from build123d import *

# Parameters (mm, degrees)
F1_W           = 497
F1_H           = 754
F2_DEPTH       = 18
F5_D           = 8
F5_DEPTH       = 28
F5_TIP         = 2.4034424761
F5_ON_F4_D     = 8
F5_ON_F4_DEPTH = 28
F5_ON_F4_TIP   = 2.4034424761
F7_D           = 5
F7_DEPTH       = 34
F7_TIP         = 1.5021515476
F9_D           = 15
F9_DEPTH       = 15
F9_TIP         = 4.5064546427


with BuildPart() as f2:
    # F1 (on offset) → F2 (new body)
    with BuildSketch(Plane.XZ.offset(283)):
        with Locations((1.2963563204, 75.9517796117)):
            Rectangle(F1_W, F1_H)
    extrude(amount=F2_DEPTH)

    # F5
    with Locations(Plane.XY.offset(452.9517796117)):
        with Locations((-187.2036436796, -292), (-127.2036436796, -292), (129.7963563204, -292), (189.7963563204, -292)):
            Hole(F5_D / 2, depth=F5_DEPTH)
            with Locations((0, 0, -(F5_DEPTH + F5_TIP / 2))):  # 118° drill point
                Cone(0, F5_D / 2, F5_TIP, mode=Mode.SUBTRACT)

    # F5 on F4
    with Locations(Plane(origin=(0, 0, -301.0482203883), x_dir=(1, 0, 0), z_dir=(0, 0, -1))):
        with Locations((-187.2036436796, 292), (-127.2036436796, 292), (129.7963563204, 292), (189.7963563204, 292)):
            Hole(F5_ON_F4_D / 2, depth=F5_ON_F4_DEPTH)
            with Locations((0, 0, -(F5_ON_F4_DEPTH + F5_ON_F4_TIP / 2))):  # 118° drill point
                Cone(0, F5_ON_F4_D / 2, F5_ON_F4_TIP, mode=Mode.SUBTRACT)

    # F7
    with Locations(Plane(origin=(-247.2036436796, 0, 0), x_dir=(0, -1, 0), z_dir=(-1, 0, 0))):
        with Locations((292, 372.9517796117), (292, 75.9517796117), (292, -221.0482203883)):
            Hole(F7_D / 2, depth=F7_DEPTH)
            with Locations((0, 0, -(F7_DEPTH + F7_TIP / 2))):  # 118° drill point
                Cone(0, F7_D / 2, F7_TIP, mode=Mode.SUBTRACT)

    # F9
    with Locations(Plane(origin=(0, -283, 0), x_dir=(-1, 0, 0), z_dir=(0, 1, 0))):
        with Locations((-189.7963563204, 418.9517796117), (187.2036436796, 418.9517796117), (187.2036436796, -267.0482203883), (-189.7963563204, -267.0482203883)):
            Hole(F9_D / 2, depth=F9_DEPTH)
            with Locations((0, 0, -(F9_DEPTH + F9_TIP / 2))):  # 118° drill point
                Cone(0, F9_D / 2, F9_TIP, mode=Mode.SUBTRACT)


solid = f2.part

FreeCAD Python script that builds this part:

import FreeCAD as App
import Part
import Sketcher
from FreeCAD import Vector


def add_polygon(sketch, points):
    """Adds a closed chain of lines whose ends are joined by coincident constraints."""
    first, n = sketch.GeometryCount, len(points)
    for a, b in zip(points, points[1:] + points[:1]):
        sketch.addGeometry(Part.LineSegment(App.Vector(*a, 0), App.Vector(*b, 0)), False)
    for i in range(n):
        sketch.addConstraint(Sketcher.Constraint("Coincident", first + i, 2, first + (i + 1) % n, 1))

doc = App.newDocument("Part")
body = doc.addObject("PartDesign::Body", "Body")

# Sketch on XZ plane
sketch1 = doc.addObject("Sketcher::SketchObject", "Sketch")
body.addObject(sketch1)
sketch1.AttachmentSupport = (doc.XZ_Plane, [""])
sketch1.MapMode = "FlatFace"
sketch1.AttachmentOffset = App.Placement(Vector(0, 0, 283), App.Rotation())
add_polygon(sketch1, [(-247, 453), (-247, -301), (250, -301), (250, 453)])  # lines 0-3
sketch1.addConstraint(Sketcher.Constraint("Vertical", 0))
sketch1.addConstraint(Sketcher.Constraint("Horizontal", 1))
sketch1.addConstraint(Sketcher.Constraint("Vertical", 2))
sketch1.addConstraint(Sketcher.Constraint("Horizontal", 3))
sketch1.addConstraint(Sketcher.Constraint("DistanceX", 1, 1, 1, 2, 497.0))
sketch1.addConstraint(Sketcher.Constraint("DistanceY", 0, 2, 0, 1, 754.0))
sketch1.addConstraint(Sketcher.Constraint("DistanceY", 0, 2, -1, 1, 301.04822))
sketch1.addConstraint(Sketcher.Constraint("DistanceX", 0, 2, -1, 1, 247.203644))
pad1 = doc.addObject("PartDesign::Pad", "Pad")
body.addObject(pad1)
pad1.Profile = sketch1
pad1.Length = 18

# Sketch on XY plane
sketch2 = doc.addObject("Sketcher::SketchObject", "Sketch001")
body.addObject(sketch2)
sketch2.AttachmentSupport = (doc.XY_Plane, [""])
sketch2.MapMode = "FlatFace"
sketch2.AttachmentOffset = App.Placement(Vector(0, 0, 452.95178), App.Rotation())
sketch2.addGeometry(Part.Circle(Vector(-187.2, -292, 0), Vector(0, 0, 1), 4), False)
sketch2.addGeometry(Part.Circle(Vector(-127.2, -292, 0), Vector(0, 0, 1), 4), False)
sketch2.addGeometry(Part.Circle(Vector(129.8, -292, 0), Vector(0, 0, 1), 4), False)
sketch2.addGeometry(Part.Circle(Vector(189.8, -292, 0), Vector(0, 0, 1), 4), False)
sketch2.addConstraint(Sketcher.Constraint("Equal", 0, 1))
sketch2.addConstraint(Sketcher.Constraint("Equal", 1, 2))
sketch2.addConstraint(Sketcher.Constraint("Equal", 2, 3))
sketch2.addConstraint(Sketcher.Constraint("Horizontal", 0, 3, 1, 3))
sketch2.addConstraint(Sketcher.Constraint("Horizontal", 1, 3, 2, 3))
sketch2.addConstraint(Sketcher.Constraint("Horizontal", 2, 3, 3, 3))
sketch2.addConstraint(Sketcher.Constraint("Diameter", 0, 8.0))
sketch2.addConstraint(Sketcher.Constraint("DistanceY", 0, 3, -1, 1, 292.0))
sketch2.addConstraint(Sketcher.Constraint("DistanceX", 0, 3, 1, 3, 60.0))
sketch2.addConstraint(Sketcher.Constraint("DistanceX", 1, 3, 2, 3, 257.0))
sketch2.addConstraint(Sketcher.Constraint("DistanceX", 2, 3, 3, 3, 60.0))
sketch2.addConstraint(Sketcher.Constraint("DistanceX", 0, 3, -1, 1, 187.203644))
doc.recompute()
hole = doc.addObject("PartDesign::Hole", "Hole")
body.addObject(hole)
hole.Profile = sketch2
hole.ThreadType = "None"
hole.Diameter = 8
hole.DepthType = "Dimension"
hole.Depth = 28
hole.DrillPoint = "Angled"
hole.DrillPointAngle = 118

# Sketch on XY plane
sketch3 = doc.addObject("Sketcher::SketchObject", "Sketch002")
body.addObject(sketch3)
sketch3.AttachmentSupport = (doc.XY_Plane, [""])
sketch3.MapMode = "FlatFace"
sketch3.AttachmentOffset = App.Placement(Vector(0, 0, -301.04822), App.Rotation())
sketch3.addGeometry(Part.Circle(Vector(-187.2, -292, 0), Vector(0, 0, 1), 4), False)
sketch3.addGeometry(Part.Circle(Vector(-127.2, -292, 0), Vector(0, 0, 1), 4), False)
sketch3.addGeometry(Part.Circle(Vector(129.8, -292, 0), Vector(0, 0, 1), 4), False)
sketch3.addGeometry(Part.Circle(Vector(189.8, -292, 0), Vector(0, 0, 1), 4), False)
sketch3.addConstraint(Sketcher.Constraint("Equal", 0, 1))
sketch3.addConstraint(Sketcher.Constraint("Equal", 1, 2))
sketch3.addConstraint(Sketcher.Constraint("Equal", 2, 3))
sketch3.addConstraint(Sketcher.Constraint("Horizontal", 0, 3, 1, 3))
sketch3.addConstraint(Sketcher.Constraint("Horizontal", 1, 3, 2, 3))
sketch3.addConstraint(Sketcher.Constraint("Horizontal", 2, 3, 3, 3))
sketch3.addConstraint(Sketcher.Constraint("Diameter", 0, 8.0))
sketch3.addConstraint(Sketcher.Constraint("DistanceY", 0, 3, -1, 1, 292.0))
sketch3.addConstraint(Sketcher.Constraint("DistanceX", 0, 3, 1, 3, 60.0))
sketch3.addConstraint(Sketcher.Constraint("DistanceX", 1, 3, 2, 3, 257.0))
sketch3.addConstraint(Sketcher.Constraint("DistanceX", 2, 3, 3, 3, 60.0))
sketch3.addConstraint(Sketcher.Constraint("DistanceX", 0, 3, -1, 1, 187.203644))
doc.recompute()
hole2 = doc.addObject("PartDesign::Hole", "Hole001")
body.addObject(hole2)
hole2.Profile = sketch3
hole2.ThreadType = "None"
hole2.Diameter = 8
hole2.DepthType = "Dimension"
hole2.Depth = 28
hole2.DrillPoint = "Angled"
hole2.DrillPointAngle = 118
hole2.Reversed = True

# Sketch on YZ plane
sketch4 = doc.addObject("Sketcher::SketchObject", "Sketch003")
body.addObject(sketch4)
sketch4.AttachmentSupport = (doc.YZ_Plane, [""])
sketch4.MapMode = "FlatFace"
sketch4.AttachmentOffset = App.Placement(Vector(0, 0, -247.203644), App.Rotation())
sketch4.addGeometry(Part.Circle(Vector(-292, 373, 0), Vector(0, 0, 1), 2.5), False)
sketch4.addGeometry(Part.Circle(Vector(-292, 76, 0), Vector(0, 0, 1), 2.5), False)
sketch4.addGeometry(Part.Circle(Vector(-292, -221, 0), Vector(0, 0, 1), 2.5), False)
sketch4.addConstraint(Sketcher.Constraint("Equal", 0, 1))
sketch4.addConstraint(Sketcher.Constraint("Equal", 1, 2))
sketch4.addConstraint(Sketcher.Constraint("Vertical", 0, 3, 1, 3))
sketch4.addConstraint(Sketcher.Constraint("Vertical", 1, 3, 2, 3))
sketch4.addConstraint(Sketcher.Constraint("Diameter", 0, 5.0))
sketch4.addConstraint(Sketcher.Constraint("DistanceX", 0, 3, -1, 1, 292.0))
sketch4.addConstraint(Sketcher.Constraint("DistanceY", 1, 3, 0, 3, 297.0))
sketch4.addConstraint(Sketcher.Constraint("DistanceY", 2, 3, 1, 3, 297.0))
sketch4.addConstraint(Sketcher.Constraint("DistanceY", -1, 1, 0, 3, 372.95178))
doc.recompute()
hole3 = doc.addObject("PartDesign::Hole", "Hole002")
body.addObject(hole3)
hole3.Profile = sketch4
hole3.ThreadType = "None"
hole3.Diameter = 5
hole3.DepthType = "Dimension"
hole3.Depth = 34
hole3.DrillPoint = "Angled"
hole3.DrillPointAngle = 118
hole3.Reversed = True

# Sketch on XZ plane
sketch5 = doc.addObject("Sketcher::SketchObject", "Sketch004")
body.addObject(sketch5)
sketch5.AttachmentSupport = (doc.XZ_Plane, [""])
sketch5.MapMode = "FlatFace"
sketch5.AttachmentOffset = App.Placement(Vector(0, 0, 283), App.Rotation())
sketch5.addGeometry(Part.Circle(Vector(190, 419, 0), Vector(0, 0, 1), 8), False)
sketch5.addGeometry(Part.Circle(Vector(-187, 419, 0), Vector(0, 0, 1), 8), False)
sketch5.addGeometry(Part.Circle(Vector(-187, -267, 0), Vector(0, 0, 1), 8), False)
sketch5.addGeometry(Part.Circle(Vector(190, -267, 0), Vector(0, 0, 1), 8), False)
sketch5.addConstraint(Sketcher.Constraint("Equal", 0, 1))
sketch5.addConstraint(Sketcher.Constraint("Equal", 1, 2))
sketch5.addConstraint(Sketcher.Constraint("Equal", 2, 3))
sketch5.addConstraint(Sketcher.Constraint("Horizontal", 0, 3, 1, 3))
sketch5.addConstraint(Sketcher.Constraint("Horizontal", 2, 3, 3, 3))
sketch5.addConstraint(Sketcher.Constraint("Vertical", 1, 3, 2, 3))
sketch5.addConstraint(Sketcher.Constraint("Vertical", 0, 3, 3, 3))
sketch5.addConstraint(Sketcher.Constraint("Diameter", 0, 15.0))
sketch5.addConstraint(Sketcher.Constraint("DistanceX", 1, 3, 0, 3, 377.0))
sketch5.addConstraint(Sketcher.Constraint("DistanceY", 2, 3, 1, 3, 686.0))
sketch5.addConstraint(Sketcher.Constraint("DistanceY", -1, 1, 0, 3, 418.95178))
sketch5.addConstraint(Sketcher.Constraint("DistanceX", -1, 1, 0, 3, 189.796356))
doc.recompute()
hole4 = doc.addObject("PartDesign::Hole", "Hole003")
body.addObject(hole4)
hole4.Profile = sketch5
hole4.ThreadType = "None"
hole4.Diameter = 15
hole4.DepthType = "Dimension"
hole4.Depth = 15
hole4.DrillPoint = "Angled"
hole4.DrillPointAngle = 118
hole4.Reversed = True

doc.recompute()
